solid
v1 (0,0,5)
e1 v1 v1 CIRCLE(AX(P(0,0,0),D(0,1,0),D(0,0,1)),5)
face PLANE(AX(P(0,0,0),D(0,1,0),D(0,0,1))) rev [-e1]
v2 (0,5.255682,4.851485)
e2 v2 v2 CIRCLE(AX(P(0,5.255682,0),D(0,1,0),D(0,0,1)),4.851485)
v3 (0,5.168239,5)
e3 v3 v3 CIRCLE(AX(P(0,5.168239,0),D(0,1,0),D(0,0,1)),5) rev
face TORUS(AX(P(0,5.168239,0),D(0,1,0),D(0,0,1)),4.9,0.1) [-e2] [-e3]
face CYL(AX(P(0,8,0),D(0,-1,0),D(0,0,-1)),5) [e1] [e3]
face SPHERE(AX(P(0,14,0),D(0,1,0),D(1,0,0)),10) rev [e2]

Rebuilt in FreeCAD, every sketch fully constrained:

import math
import FreeCAD as App
import Part
import Sketcher
from FreeCAD import Vector


def edges_at(feature, points):
    """Names of the edges that pass closest to the given points."""
    edges = feature.Shape.Edges
    near = lambda p: min(range(len(edges)), key=lambda i: edges[i].distToShape(Part.Vertex(*p))[0])
    return sorted({f"Edge{near(p) + 1}" for p in points})

doc = App.newDocument("Part")
body = doc.addObject("PartDesign::Body", "Body")

sketch1 = doc.addObject("Sketcher::SketchObject", "Sketch")
body.addObject(sketch1)
sketch1.AttachmentSupport = (doc.XZ_Plane, [""])
sketch1.MapMode = "FlatFace"
sketch1.addGeometry(Part.Circle(Vector(0, 0, 0), Vector(0, 0, 1), 5), False)
sketch1.addConstraint([
    Sketcher.Constraint("Coincident", 0, 3, -1, 1),
    Sketcher.Constraint("Diameter", 0, 10.0),
])
pad1 = doc.addObject("PartDesign::Pad", "Pad")
body.addObject(pad1)
pad1.Profile = sketch1
pad1.Length = 8
pad1.Reversed = True

sketch2 = doc.addObject("Sketcher::SketchObject", "Sketch001")
body.addObject(sketch2)
sketch2.AttachmentSupport = (doc.XY_Plane, [""])
sketch2.MapMode = "FlatFace"
sketch2.addGeometry([
    Part.ArcOfCircle(Part.Circle(Vector(0, 14, 0), Vector(0, 0, 1), 10), math.radians(-90), math.radians(0)),
    Part.ArcOfCircle(Part.Circle(Vector(0, 14, 0), Vector(0, 0, 1), 10), math.radians(0), math.radians(90)),
    Part.LineSegment(Vector(0, 24, 0), Vector(0, 4, 0)),
], False)
sketch2.addConstraint([
    Sketcher.Constraint("Tangent", 0, 2, 1, 1),
    Sketcher.Constraint("Coincident", 1, 2, 2, 1),
    Sketcher.Constraint("Coincident", 2, 2, 0, 1),
    Sketcher.Constraint("Vertical", 2),
    Sketcher.Constraint("Equal", 0, 1),
    Sketcher.Constraint("PointOnObject", 0, 3, -2),
    Sketcher.Constraint("PointOnObject", 1, 2, -2),
    Sketcher.Constraint("Horizontal", 1, 3, 0, 2),
    Sketcher.Constraint("Radius", 0, 10.0),
    Sketcher.Constraint("DistanceY", -1, 1, 0, 3, 14.0),
])
groove = doc.addObject("PartDesign::Groove", "Groove")
body.addObject(groove)
groove.Profile = sketch2
groove.ReferenceAxis = (sketch2, ["V_Axis"])
groove.Angle = 360
doc.recompute()

fillet = doc.addObject("PartDesign::Fillet", "Fillet")
body.addObject(fillet)
fillet.Base = (groove, edges_at(groove, [(-5, 5.34, 0)]))
fillet.Radius = 0.1

doc.recompute()
